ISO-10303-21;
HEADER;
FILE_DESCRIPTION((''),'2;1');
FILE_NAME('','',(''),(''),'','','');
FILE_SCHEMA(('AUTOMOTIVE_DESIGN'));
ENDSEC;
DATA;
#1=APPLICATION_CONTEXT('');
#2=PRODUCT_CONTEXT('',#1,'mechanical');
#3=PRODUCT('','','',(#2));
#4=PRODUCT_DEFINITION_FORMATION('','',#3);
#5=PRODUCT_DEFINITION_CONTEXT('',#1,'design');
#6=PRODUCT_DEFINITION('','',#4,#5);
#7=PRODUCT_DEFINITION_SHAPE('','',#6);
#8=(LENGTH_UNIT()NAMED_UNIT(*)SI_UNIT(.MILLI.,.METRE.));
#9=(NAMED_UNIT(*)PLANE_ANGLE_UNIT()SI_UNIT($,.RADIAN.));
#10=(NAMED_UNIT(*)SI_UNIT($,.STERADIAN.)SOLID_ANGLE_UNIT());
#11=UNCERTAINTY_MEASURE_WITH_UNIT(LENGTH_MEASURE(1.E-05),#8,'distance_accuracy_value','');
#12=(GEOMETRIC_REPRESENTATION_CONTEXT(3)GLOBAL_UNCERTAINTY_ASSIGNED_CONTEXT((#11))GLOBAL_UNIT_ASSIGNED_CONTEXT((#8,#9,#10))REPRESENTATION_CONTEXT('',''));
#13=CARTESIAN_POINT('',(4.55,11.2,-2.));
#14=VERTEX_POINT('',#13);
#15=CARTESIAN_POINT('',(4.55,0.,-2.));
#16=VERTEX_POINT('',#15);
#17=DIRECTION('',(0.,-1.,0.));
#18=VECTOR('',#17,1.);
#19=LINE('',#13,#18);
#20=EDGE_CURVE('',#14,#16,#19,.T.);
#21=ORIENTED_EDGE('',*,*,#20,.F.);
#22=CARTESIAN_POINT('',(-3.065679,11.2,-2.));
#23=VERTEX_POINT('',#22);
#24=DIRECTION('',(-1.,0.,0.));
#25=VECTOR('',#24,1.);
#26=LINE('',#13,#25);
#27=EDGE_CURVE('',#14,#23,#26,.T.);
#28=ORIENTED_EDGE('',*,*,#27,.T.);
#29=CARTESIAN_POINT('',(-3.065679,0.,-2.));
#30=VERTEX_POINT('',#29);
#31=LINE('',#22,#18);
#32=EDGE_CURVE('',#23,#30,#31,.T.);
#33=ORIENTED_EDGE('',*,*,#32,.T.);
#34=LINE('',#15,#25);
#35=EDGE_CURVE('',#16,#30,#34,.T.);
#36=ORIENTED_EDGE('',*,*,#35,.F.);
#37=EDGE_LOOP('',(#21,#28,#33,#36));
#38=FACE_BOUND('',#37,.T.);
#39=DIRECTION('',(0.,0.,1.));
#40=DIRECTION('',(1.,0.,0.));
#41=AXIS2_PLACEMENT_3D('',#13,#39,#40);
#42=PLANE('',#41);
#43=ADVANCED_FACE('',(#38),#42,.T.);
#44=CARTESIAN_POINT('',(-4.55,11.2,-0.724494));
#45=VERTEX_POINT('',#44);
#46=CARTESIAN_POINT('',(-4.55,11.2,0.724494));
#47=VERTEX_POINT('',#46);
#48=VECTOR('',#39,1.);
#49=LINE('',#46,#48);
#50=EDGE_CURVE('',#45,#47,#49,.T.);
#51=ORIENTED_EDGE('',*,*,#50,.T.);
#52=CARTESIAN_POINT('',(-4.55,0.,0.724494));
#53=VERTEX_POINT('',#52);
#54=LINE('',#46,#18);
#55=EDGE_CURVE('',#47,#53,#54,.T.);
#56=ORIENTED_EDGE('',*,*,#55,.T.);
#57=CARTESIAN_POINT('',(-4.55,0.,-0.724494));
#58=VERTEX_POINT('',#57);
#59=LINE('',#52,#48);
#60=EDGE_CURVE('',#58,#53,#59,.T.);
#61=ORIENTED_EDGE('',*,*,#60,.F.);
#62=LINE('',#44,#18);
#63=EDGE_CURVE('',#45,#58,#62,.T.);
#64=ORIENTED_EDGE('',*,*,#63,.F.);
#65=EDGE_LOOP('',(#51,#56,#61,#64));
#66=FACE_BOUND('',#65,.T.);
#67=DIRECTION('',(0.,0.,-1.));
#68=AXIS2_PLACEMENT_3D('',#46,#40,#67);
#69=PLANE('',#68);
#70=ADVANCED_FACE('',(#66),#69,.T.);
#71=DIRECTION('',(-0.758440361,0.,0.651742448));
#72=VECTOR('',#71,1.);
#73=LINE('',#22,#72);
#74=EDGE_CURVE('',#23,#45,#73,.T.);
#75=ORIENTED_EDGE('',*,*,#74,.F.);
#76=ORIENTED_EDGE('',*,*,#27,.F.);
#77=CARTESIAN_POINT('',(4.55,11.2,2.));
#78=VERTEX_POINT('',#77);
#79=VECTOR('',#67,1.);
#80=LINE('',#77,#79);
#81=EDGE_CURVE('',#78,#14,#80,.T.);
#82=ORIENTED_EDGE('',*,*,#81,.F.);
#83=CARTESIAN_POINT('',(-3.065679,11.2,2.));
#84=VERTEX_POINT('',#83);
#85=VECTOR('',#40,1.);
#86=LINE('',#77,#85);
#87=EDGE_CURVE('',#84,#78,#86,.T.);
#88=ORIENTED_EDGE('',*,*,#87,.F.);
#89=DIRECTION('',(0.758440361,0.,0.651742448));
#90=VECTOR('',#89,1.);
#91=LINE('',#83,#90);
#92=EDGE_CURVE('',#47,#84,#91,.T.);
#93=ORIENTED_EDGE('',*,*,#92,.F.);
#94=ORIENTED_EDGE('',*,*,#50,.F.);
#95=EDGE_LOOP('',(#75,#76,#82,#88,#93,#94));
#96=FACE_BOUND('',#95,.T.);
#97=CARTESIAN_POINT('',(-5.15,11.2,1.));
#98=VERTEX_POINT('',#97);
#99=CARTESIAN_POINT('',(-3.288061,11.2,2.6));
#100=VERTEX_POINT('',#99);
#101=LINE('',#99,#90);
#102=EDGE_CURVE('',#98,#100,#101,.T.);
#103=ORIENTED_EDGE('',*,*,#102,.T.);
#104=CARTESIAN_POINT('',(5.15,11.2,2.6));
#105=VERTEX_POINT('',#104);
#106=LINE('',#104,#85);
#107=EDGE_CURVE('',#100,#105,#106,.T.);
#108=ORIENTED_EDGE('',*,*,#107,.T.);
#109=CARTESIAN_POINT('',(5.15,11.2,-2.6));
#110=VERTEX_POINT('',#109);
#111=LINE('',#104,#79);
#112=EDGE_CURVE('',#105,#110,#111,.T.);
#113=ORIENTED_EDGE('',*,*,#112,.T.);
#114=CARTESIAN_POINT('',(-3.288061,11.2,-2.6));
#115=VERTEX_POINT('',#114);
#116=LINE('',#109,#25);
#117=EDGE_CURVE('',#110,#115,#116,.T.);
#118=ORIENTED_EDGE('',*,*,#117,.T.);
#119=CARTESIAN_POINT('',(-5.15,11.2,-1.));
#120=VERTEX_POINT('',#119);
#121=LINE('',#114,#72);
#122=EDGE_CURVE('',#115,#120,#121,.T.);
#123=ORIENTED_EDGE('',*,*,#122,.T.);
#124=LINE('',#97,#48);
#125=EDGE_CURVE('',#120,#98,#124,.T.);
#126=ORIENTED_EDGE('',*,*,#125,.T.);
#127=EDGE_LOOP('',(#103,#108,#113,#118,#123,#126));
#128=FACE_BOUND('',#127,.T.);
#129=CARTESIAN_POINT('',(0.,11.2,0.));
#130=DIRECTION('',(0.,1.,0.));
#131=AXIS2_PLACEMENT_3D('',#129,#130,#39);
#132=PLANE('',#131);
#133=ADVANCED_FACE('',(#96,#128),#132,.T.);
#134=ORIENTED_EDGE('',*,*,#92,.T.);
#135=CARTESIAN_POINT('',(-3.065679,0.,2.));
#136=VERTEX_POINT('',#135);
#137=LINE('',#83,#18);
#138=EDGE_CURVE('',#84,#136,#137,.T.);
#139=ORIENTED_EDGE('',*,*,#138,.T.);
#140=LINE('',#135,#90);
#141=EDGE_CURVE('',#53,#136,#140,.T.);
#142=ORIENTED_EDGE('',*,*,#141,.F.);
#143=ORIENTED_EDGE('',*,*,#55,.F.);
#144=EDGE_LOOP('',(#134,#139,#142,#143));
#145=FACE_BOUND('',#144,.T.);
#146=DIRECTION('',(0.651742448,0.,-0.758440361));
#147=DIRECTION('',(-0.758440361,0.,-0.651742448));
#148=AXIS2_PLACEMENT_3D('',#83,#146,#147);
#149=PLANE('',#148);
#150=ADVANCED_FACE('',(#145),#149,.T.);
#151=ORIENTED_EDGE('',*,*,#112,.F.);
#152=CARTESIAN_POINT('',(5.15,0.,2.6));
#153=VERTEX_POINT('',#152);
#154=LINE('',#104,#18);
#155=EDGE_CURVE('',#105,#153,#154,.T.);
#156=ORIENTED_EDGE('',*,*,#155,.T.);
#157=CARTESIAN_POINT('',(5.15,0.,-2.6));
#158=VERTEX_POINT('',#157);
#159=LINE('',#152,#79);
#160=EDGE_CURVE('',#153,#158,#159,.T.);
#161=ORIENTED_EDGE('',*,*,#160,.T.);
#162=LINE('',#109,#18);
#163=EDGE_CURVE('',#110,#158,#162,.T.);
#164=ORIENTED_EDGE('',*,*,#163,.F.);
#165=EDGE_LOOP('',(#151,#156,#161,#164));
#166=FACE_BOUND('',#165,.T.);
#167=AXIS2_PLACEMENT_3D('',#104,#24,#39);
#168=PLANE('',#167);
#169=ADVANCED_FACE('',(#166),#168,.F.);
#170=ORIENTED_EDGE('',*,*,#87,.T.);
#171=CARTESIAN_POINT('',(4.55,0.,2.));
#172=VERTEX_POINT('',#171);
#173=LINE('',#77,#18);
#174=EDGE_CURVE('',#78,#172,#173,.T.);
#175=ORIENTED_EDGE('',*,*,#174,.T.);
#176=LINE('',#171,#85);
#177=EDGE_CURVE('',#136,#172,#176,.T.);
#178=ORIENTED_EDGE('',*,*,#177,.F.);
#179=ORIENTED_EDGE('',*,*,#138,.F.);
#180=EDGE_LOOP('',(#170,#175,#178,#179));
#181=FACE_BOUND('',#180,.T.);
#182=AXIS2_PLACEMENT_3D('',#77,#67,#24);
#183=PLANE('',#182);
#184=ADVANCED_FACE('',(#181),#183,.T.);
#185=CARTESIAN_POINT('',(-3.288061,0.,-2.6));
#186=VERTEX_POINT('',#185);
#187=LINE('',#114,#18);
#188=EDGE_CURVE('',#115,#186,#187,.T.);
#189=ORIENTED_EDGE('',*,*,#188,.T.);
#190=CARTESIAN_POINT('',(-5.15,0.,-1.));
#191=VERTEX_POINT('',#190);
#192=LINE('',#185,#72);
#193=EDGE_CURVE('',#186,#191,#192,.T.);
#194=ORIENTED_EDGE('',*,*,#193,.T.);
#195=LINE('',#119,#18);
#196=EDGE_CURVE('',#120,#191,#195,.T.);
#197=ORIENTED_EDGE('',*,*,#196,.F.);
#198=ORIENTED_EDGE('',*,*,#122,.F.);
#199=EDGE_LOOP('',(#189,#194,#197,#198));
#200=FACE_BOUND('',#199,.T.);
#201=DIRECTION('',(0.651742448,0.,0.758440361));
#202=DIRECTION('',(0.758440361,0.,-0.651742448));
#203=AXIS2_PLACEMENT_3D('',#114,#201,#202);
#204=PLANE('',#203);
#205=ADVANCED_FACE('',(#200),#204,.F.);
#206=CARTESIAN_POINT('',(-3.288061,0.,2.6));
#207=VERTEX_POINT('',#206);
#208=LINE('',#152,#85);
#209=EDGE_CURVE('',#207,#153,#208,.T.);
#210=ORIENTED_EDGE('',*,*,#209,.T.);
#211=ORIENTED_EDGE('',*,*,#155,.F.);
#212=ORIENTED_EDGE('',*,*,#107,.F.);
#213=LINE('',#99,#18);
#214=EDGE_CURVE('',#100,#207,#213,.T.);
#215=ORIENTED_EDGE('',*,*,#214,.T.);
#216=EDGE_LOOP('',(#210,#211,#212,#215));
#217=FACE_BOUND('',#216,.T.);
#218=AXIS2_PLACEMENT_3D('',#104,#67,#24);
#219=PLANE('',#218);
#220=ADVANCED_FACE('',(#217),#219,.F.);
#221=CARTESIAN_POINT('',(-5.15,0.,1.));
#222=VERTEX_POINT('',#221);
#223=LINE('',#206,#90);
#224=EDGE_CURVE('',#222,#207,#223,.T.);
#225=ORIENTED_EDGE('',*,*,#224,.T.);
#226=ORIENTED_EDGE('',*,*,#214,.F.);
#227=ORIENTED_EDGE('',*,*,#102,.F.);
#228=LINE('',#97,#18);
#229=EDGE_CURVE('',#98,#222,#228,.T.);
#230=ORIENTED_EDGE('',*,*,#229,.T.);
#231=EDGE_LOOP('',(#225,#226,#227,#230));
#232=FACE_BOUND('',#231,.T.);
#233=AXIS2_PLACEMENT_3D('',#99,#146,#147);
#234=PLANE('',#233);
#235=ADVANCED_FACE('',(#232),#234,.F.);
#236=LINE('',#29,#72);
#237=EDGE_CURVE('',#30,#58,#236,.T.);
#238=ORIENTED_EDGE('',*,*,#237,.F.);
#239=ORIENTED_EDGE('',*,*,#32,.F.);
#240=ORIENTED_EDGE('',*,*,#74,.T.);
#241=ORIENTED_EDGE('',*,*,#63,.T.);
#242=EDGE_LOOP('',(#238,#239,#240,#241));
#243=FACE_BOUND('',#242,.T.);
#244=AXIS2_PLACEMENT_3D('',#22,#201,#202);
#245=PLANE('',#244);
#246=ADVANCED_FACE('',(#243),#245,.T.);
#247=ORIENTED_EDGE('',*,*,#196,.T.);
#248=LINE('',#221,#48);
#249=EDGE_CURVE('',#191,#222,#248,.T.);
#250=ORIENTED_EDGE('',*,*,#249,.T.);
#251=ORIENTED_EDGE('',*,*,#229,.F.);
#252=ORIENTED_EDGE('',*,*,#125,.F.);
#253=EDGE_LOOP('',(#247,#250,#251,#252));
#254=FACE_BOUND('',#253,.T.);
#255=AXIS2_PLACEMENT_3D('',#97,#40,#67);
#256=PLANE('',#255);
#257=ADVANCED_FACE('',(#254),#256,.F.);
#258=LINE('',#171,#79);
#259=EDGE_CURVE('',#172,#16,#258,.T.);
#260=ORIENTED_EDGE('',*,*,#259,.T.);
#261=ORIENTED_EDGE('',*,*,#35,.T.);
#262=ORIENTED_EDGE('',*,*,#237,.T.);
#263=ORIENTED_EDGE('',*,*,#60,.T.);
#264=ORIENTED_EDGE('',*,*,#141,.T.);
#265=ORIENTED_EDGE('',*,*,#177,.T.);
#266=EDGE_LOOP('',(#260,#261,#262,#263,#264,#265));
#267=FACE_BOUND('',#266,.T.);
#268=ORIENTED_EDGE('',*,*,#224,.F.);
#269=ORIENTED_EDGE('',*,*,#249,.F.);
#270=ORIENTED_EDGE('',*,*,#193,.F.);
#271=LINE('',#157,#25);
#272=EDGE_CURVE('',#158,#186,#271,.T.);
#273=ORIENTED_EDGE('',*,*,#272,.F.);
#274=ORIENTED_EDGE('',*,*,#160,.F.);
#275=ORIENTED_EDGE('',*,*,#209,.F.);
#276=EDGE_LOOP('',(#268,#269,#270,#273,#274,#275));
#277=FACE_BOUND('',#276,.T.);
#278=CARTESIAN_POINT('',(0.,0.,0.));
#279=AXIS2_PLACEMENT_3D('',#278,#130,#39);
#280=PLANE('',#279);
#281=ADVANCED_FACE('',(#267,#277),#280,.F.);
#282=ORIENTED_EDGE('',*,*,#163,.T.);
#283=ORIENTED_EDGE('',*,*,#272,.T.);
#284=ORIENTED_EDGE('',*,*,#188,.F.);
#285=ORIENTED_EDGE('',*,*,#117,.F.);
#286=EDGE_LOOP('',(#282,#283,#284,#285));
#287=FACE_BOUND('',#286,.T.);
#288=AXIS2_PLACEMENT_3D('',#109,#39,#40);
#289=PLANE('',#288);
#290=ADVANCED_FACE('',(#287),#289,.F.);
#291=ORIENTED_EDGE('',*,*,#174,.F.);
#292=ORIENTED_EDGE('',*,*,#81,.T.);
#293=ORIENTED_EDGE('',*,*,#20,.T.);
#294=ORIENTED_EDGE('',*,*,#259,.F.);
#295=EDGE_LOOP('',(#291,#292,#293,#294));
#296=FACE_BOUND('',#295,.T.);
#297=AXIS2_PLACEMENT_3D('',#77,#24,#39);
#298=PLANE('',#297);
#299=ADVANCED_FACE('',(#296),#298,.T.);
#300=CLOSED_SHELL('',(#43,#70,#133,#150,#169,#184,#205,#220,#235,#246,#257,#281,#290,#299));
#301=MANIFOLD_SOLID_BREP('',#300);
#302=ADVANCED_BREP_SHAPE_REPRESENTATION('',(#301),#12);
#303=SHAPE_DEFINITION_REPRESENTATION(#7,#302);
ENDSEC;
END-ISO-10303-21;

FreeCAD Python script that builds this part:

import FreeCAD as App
import Part
import Sketcher

V = App.Vector
Q = App.Units.Quantity


def add_polygon(sketch, points):
    """Adds a closed chain of lines whose ends are joined by coincident constraints."""
    first, n = sketch.GeometryCount, len(points)
    for a, b in zip(points, points[1:] + points[:1]):
        sketch.addGeometry(Part.LineSegment(App.Vector(*a, 0), App.Vector(*b, 0)), False)
    for i in range(n):
        sketch.addConstraint(Sketcher.Constraint("Coincident", first + i, 2, first + (i + 1) % n, 1))

doc = App.newDocument("Part")
body = doc.addObject("PartDesign::Body", "Body")

# Sketch on XZ plane
sketch1 = doc.addObject("Sketcher::SketchObject", "Sketch")
body.addObject(sketch1)
sketch1.AttachmentSupport = (doc.XZ_Plane, [""])
sketch1.MapMode = "FlatFace"
add_polygon(sketch1, [(-3.3, -2.6), (-5.2, -1), (-5.2, 1), (-3.3, 2.6), (5.2, 2.6), (5.2, -2.6)])  # lines 0-5
add_polygon(sketch1, [(-3.1, -2), (4.5, -2), (4.5, 2), (-3.1, 2), (-4.5, 0.7), (-4.5, -0.7)])  # lines 6-11
sketch1.addConstraint([
    Sketcher.Constraint("Vertical", 1),
    Sketcher.Constraint("Horizontal", 3),
    Sketcher.Constraint("Vertical", 4),
    Sketcher.Constraint("Horizontal", 5),
    Sketcher.Constraint("Horizontal", 6),
    Sketcher.Constraint("Vertical", 7),
    Sketcher.Constraint("Horizontal", 8),
    Sketcher.Constraint("Vertical", 10),
    Sketcher.Constraint("Symmetric", 2, 2, 5, 2, -1),
    Sketcher.Constraint("Symmetric", 8, 2, 11, 2, -1),
    Sketcher.Constraint("Parallel", 2, 9),
    Sketcher.Constraint("Parallel", 0, 11),
    Sketcher.Constraint("Equal", 0, 2),
    Sketcher.Constraint("DistanceY", 1, 1, 1, 2, Q("2 mm")),
    Sketcher.Constraint("DistanceY", 7, 1, 7, 2, Q("4 mm")),
    Sketcher.Constraint("DistanceY", 4, 2, 4, 1, Q("5.2 mm")),
    Sketcher.Constraint("DistanceX", 1, 2, 3, 2, Q("10.3 mm")),
    Sketcher.Constraint("DistanceX", 6, 2, 4, 2, Q("0.6 mm")),
    Sketcher.Constraint("DistanceX", 1, 2, 9, 2, Q("0.6 mm")),
    Sketcher.Constraint("DistanceX", 0, 2, -1, 1, Q("5.15 mm")),
    Sketcher.Constraint("DistanceX", 3, 1, 3, 2, Q("8.438061 mm")),
    Sketcher.Constraint("DistanceX", 6, 1, 6, 2, Q("7.615679 mm")),
])
pad1 = doc.addObject("PartDesign::Pad", "Pad")
body.addObject(pad1)
pad1.Profile = sketch1
pad1.Length = 11.2
pad1.Reversed = True

doc.recompute()
